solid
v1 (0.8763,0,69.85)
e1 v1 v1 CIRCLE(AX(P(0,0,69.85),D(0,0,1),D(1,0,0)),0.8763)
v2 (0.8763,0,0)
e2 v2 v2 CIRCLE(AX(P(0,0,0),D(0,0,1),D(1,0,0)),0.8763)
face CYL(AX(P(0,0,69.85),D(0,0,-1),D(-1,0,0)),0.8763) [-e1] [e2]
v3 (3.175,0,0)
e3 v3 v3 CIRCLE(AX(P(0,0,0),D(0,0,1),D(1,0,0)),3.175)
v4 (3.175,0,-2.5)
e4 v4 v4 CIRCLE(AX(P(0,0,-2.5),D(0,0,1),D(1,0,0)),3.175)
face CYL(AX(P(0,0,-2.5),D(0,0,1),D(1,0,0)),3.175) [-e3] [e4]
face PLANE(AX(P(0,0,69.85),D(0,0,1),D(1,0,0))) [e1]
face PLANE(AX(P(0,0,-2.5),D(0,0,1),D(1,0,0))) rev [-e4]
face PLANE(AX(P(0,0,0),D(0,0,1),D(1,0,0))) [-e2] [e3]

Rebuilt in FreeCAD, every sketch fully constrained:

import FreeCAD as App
import Part
import Sketcher
Q = App.Units.Quantity

doc = App.newDocument("Part")
body = doc.addObject("PartDesign::Body", "Body")

# Sketch on XY plane
sketch1 = body.newObject("Sketcher::SketchObject", "Sketch")
sketch1.AttachmentSupport = (doc.getObject("XY_Plane"), [""])
sketch1.MapMode = "FlatFace"
sketch1.addGeometry(Part.Circle(App.Vector(0, 0, 0), App.Vector(0, 0, 1), 0.9), False)
sketch1.addConstraint(Sketcher.Constraint("Coincident", 0, 3, -1, 1))
sketch1.addConstraint(Sketcher.Constraint("Diameter", 0, Q("0.069 in")))
pad1 = body.newObject("PartDesign::Pad", "Pad")
pad1.Profile = sketch1
pad1.Length = Q("2.75 in")

# Sketch on XY plane
sketch2 = body.newObject("Sketcher::SketchObject", "Sketch001")
sketch2.AttachmentSupport = (doc.getObject("XY_Plane"), [""])
sketch2.MapMode = "FlatFace"
sketch2.addGeometry(Part.Circle(App.Vector(0, 0, 0), App.Vector(0, 0, 1), 3.2), False)
sketch2.addConstraint(Sketcher.Constraint("Coincident", 0, 3, -1, 1))
sketch2.addConstraint(Sketcher.Constraint("Diameter", 0, Q("0.25 in")))
pad2 = body.newObject("PartDesign::Pad", "Pad001")
pad2.Profile = sketch2
pad2.Length = 2.5
pad2.Reversed = True

doc.recompute()
